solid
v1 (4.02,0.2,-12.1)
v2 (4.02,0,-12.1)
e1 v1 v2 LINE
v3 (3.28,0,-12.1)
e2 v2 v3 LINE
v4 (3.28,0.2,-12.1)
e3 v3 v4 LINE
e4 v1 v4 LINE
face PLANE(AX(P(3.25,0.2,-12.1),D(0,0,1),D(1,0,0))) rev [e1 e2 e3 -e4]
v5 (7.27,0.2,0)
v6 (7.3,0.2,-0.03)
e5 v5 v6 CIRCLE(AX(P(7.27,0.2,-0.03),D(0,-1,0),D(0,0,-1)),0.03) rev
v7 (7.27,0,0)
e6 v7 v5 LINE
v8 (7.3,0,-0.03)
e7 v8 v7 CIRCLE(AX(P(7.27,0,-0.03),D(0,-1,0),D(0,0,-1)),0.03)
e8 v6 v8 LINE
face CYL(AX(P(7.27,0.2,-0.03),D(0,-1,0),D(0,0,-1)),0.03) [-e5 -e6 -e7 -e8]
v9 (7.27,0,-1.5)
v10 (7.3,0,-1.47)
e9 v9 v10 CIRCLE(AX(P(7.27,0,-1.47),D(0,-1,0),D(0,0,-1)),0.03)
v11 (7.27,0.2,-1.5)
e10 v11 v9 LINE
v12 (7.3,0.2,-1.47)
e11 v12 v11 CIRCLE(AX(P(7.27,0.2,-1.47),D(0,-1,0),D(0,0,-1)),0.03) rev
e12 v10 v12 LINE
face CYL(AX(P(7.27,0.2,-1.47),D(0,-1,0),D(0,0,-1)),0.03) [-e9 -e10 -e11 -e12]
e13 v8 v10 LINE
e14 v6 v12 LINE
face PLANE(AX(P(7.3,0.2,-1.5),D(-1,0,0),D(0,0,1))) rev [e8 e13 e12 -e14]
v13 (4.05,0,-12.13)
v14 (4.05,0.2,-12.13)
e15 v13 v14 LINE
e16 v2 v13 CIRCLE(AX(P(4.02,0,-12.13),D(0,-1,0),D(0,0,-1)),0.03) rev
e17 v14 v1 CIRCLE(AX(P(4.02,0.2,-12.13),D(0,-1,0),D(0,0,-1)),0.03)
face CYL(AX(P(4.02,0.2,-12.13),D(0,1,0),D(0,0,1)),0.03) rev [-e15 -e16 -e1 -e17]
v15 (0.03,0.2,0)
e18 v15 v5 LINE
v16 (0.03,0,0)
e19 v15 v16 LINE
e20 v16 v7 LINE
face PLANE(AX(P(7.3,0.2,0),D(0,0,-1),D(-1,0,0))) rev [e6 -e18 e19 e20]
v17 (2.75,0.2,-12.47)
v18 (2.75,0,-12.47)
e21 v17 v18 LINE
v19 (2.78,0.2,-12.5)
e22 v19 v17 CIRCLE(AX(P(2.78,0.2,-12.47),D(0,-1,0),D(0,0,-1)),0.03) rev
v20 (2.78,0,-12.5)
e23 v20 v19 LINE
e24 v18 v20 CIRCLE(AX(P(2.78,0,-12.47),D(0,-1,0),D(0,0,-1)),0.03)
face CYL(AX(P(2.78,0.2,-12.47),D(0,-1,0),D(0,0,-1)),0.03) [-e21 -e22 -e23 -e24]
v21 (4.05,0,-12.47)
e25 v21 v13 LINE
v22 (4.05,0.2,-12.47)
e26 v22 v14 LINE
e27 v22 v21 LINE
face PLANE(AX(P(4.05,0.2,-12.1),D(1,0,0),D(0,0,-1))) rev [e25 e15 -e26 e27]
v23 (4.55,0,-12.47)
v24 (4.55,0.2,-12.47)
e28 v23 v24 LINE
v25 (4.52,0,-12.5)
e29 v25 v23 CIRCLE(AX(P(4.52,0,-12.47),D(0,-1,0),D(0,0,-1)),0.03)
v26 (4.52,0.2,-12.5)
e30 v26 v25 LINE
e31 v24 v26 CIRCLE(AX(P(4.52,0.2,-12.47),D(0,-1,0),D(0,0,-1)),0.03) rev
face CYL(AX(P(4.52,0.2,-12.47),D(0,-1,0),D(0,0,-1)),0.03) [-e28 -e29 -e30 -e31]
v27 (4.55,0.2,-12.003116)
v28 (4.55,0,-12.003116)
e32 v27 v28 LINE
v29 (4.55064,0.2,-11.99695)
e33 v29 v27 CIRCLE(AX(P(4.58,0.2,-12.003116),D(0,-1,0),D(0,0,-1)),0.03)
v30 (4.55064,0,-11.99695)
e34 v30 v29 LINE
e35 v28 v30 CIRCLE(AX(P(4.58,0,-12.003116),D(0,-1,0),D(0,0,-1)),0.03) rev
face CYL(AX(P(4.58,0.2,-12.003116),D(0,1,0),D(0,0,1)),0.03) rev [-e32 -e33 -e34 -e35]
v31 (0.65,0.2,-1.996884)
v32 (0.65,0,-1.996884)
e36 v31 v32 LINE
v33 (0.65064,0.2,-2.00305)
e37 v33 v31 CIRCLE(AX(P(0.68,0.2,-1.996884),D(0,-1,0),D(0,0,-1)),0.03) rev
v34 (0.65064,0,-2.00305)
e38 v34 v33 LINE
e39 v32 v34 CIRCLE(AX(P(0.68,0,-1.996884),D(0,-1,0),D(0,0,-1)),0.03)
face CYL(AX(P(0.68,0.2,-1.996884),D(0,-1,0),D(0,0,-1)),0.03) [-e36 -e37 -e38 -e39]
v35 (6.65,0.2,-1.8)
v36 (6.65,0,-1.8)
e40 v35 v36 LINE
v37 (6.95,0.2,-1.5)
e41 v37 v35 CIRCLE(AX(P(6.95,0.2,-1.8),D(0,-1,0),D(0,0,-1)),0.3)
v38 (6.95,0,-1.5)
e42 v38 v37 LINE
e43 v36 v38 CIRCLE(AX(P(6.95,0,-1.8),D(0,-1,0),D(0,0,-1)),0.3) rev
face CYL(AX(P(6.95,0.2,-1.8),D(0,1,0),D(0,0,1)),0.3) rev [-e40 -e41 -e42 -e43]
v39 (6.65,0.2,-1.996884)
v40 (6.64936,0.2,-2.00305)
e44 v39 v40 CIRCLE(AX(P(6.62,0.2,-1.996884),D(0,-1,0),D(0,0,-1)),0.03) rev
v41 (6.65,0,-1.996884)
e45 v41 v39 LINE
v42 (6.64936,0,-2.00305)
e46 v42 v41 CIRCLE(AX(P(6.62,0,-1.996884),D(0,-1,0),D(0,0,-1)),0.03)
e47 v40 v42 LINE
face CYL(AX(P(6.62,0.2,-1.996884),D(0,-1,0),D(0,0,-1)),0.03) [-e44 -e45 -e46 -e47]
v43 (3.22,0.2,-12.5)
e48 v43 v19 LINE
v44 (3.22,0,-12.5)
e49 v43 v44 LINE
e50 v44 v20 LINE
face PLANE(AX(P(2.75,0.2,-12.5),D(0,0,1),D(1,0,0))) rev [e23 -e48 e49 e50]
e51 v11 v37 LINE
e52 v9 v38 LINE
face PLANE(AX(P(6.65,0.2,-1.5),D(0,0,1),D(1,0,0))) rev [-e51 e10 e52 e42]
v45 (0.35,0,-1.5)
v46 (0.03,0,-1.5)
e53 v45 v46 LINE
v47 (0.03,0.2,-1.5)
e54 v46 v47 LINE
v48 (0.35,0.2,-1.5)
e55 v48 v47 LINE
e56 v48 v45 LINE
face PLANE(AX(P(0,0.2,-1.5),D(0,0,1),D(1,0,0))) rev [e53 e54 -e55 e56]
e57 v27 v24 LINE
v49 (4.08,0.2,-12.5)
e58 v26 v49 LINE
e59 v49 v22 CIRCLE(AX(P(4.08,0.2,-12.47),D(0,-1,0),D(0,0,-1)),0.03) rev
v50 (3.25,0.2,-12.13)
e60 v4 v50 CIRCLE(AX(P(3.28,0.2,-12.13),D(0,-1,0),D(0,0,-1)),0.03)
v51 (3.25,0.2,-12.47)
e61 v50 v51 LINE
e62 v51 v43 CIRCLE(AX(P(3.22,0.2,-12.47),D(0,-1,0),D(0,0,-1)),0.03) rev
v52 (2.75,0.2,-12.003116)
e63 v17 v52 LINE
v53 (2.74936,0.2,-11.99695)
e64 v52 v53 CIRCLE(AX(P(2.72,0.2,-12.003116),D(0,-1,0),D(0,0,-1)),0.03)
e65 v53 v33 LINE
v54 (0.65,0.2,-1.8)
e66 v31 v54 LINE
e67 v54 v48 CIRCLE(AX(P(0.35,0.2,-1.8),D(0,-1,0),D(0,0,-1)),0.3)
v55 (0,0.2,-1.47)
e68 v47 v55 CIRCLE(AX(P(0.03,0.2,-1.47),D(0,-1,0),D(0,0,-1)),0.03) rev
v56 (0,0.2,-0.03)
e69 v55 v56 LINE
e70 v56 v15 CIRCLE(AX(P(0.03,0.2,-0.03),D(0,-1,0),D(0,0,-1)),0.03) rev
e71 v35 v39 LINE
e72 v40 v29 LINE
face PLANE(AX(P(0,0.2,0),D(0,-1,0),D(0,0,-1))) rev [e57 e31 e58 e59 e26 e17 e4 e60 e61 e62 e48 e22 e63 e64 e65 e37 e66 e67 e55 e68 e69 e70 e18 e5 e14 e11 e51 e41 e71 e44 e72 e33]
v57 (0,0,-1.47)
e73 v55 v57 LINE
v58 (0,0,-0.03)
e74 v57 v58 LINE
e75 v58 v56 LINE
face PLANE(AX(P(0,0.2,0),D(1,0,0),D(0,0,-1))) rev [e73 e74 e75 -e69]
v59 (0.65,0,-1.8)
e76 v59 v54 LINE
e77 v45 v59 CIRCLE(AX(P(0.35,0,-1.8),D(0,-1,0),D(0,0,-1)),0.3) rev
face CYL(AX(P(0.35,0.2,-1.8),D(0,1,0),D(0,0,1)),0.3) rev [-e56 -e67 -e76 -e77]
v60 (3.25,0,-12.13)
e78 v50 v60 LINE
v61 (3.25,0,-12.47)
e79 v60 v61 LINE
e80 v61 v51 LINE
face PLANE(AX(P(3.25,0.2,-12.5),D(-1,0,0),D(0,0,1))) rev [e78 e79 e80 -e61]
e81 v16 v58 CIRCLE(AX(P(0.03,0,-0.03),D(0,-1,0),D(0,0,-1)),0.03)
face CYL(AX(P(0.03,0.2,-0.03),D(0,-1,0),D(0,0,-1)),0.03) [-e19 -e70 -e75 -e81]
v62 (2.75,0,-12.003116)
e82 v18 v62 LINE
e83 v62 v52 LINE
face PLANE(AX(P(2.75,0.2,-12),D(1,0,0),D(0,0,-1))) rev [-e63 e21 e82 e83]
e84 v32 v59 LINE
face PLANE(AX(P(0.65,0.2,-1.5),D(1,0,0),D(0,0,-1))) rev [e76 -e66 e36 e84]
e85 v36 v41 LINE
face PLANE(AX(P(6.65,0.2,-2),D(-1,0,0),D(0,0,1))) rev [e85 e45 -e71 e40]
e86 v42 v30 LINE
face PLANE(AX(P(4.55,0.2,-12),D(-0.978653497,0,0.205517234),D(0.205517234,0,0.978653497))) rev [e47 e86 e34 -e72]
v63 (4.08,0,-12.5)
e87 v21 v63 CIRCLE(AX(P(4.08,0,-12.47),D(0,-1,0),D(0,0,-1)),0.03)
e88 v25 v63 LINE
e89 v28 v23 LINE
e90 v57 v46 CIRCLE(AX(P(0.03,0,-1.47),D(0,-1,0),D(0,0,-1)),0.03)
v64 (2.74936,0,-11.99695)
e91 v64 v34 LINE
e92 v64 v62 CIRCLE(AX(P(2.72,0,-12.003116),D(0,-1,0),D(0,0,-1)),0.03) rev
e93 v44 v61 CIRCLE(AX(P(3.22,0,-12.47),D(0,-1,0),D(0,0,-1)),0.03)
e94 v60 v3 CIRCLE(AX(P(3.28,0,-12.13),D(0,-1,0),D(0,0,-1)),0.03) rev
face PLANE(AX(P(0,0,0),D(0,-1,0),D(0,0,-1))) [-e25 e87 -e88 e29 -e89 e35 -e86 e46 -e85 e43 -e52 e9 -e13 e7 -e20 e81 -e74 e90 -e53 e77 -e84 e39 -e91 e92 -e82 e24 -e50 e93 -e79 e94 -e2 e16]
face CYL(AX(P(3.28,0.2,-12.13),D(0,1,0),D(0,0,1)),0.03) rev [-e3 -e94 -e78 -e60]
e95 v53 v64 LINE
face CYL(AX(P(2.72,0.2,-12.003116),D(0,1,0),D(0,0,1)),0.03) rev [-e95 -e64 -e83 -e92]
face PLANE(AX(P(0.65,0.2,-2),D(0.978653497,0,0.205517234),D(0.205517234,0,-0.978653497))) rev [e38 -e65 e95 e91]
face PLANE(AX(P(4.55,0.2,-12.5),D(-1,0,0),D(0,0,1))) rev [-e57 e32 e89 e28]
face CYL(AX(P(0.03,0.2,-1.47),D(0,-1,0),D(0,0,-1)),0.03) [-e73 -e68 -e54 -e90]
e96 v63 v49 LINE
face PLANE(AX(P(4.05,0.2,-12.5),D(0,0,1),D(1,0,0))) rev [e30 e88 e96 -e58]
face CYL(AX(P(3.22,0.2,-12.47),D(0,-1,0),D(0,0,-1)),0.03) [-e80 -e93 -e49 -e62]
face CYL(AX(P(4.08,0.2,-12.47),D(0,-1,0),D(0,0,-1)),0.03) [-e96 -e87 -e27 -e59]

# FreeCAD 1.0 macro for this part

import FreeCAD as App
import Part
import Sketcher
from FreeCAD import Vector
Q = App.Units.Quantity


def edges_at(feature, points):
    """Names of the edges that pass closest to the given points."""
    edges = feature.Shape.Edges
    near = lambda p: min(range(len(edges)), key=lambda i: edges[i].distToShape(Part.Vertex(*p))[0])
    return sorted({f"Edge{near(p) + 1}" for p in points})

doc = App.newDocument("Part")
body = doc.addObject("PartDesign::Body", "Body")

# Sketch on XZ plane
sketch1 = body.newObject("Sketcher::SketchObject", "Sketch")
sketch1.AttachmentSupport = (doc.getObject("XZ_Plane"), [""])
sketch1.MapMode = "FlatFace"
sketch1.addGeometry(Part.LineSegment(Vector(0, -1.5, 0), Vector(0, 0, 0)), False)
sketch1.addGeometry(Part.LineSegment(Vector(0, 0, 0), Vector(7.3, 0, 0)), False)
sketch1.addGeometry(Part.LineSegment(Vector(7.3, 0, 0), Vector(7.3, -1.5, 0)), False)
sketch1.addGeometry(Part.LineSegment(Vector(7.3, -1.5, 0), Vector(6.65, -1.5, 0)), False)
sketch1.addGeometry(Part.LineSegment(Vector(6.65, -1.5, 0), Vector(6.65, -2, 0)), False)
sketch1.addGeometry(Part.LineSegment(Vector(6.65, -2, 0), Vector(4.55, -12, 0)), False)
sketch1.addGeometry(Part.LineSegment(Vector(4.55, -12, 0), Vector(4.55, -12.5, 0)), False)
sketch1.addGeometry(Part.LineSegment(Vector(4.55, -12.5, 0), Vector(4.05, -12.5, 0)), False)
sketch1.addGeometry(Part.LineSegment(Vector(4.05, -12.5, 0), Vector(4.05, -12.1, 0)), False)
sketch1.addGeometry(Part.LineSegment(Vector(4.05, -12.1, 0), Vector(3.25, -12.1, 0)), False)
sketch1.addGeometry(Part.LineSegment(Vector(3.25, -12.1, 0), Vector(3.25, -12.5, 0)), False)
sketch1.addGeometry(Part.LineSegment(Vector(3.25, -12.5, 0), Vector(2.75, -12.5, 0)), False)
sketch1.addGeometry(Part.LineSegment(Vector(2.75, -12.5, 0), Vector(2.75, -12, 0)), False)
sketch1.addGeometry(Part.LineSegment(Vector(2.75, -12, 0), Vector(0.65, -2, 0)), False)
sketch1.addGeometry(Part.LineSegment(Vector(0.65, -2, 0), Vector(0.65, -1.5, 0)), False)
sketch1.addGeometry(Part.LineSegment(Vector(0.65, -1.5, 0), Vector(0, -1.5, 0)), False)
sketch1.addConstraint(Sketcher.Constraint("Coincident", 0, 2, 1, 1))
sketch1.addConstraint(Sketcher.Constraint("Coincident", 1, 2, 2, 1))
sketch1.addConstraint(Sketcher.Constraint("Coincident", 2, 2, 3, 1))
sketch1.addConstraint(Sketcher.Constraint("Coincident", 3, 2, 4, 1))
sketch1.addConstraint(Sketcher.Constraint("Coincident", 4, 2, 5, 1))
sketch1.addConstraint(Sketcher.Constraint("Coincident", 5, 2, 6, 1))
sketch1.addConstraint(Sketcher.Constraint("Coincident", 6, 2, 7, 1))
sketch1.addConstraint(Sketcher.Constraint("Coincident", 7, 2, 8, 1))
sketch1.addConstraint(Sketcher.Constraint("Coincident", 8, 2, 9, 1))
sketch1.addConstraint(Sketcher.Constraint("Coincident", 9, 2, 10, 1))
sketch1.addConstraint(Sketcher.Constraint("Coincident", 10, 2, 11, 1))
sketch1.addConstraint(Sketcher.Constraint("Coincident", 11, 2, 12, 1))
sketch1.addConstraint(Sketcher.Constraint("Coincident", 12, 2, 13, 1))
sketch1.addConstraint(Sketcher.Constraint("Coincident", 13, 2, 14, 1))
sketch1.addConstraint(Sketcher.Constraint("Coincident", 14, 2, 15, 1))
sketch1.addConstraint(Sketcher.Constraint("Coincident", 15, 2, 0, 1))
sketch1.addConstraint(Sketcher.Constraint("Vertical", 0))
sketch1.addConstraint(Sketcher.Constraint("Horizontal", 1))
sketch1.addConstraint(Sketcher.Constraint("Vertical", 2))
sketch1.addConstraint(Sketcher.Constraint("Horizontal", 3))
sketch1.addConstraint(Sketcher.Constraint("Vertical", 4))
sketch1.addConstraint(Sketcher.Constraint("Vertical", 6))
sketch1.addConstraint(Sketcher.Constraint("Horizontal", 7))
sketch1.addConstraint(Sketcher.Constraint("Vertical", 8))
sketch1.addConstraint(Sketcher.Constraint("Horizontal", 9))
sketch1.addConstraint(Sketcher.Constraint("Vertical", 10))
sketch1.addConstraint(Sketcher.Constraint("Horizontal", 11))
sketch1.addConstraint(Sketcher.Constraint("Vertical", 12))
sketch1.addConstraint(Sketcher.Constraint("Vertical", 14))
sketch1.addConstraint(Sketcher.Constraint("Horizontal", 15))
sketch1.addConstraint(Sketcher.Constraint("Coincident", 0, 2, -1, 1))
sketch1.addConstraint(Sketcher.Constraint("Horizontal", 7, 2, 10, 2))
sketch1.addConstraint(Sketcher.Constraint("Horizontal", 5, 2, 12, 2))
sketch1.addConstraint(Sketcher.Constraint("Horizontal", 4, 2, 13, 2))
sketch1.addConstraint(Sketcher.Constraint("Horizontal", 3, 2, 14, 2))
sketch1.addConstraint(Sketcher.Constraint("Equal", 7, 11))
sketch1.addConstraint(Sketcher.Constraint("Equal", 3, 15))
sketch1.addConstraint(Sketcher.Constraint("Equal", 11, 4))
sketch1.addConstraint(Sketcher.Constraint("Equal", 4, 6))
sketch1.addConstraint(Sketcher.Constraint("Equal", 5, 13))
sketch1.addConstraint(Sketcher.Constraint("DistanceX", 1, 1, 1, 2, Q("7.3 mm")))
sketch1.addConstraint(Sketcher.Constraint("DistanceX", 7, 2, 7, 1, Q("0.5 mm")))
sketch1.addConstraint(Sketcher.Constraint("DistanceX", 9, 2, 9, 1, Q("0.8 mm")))
sketch1.addConstraint(Sketcher.Constraint("DistanceY", 0, 1, 0, 2, Q("1.5 mm")))
sketch1.addConstraint(Sketcher.Constraint("DistanceY", 8, 1, 8, 2, Q("0.4 mm")))
sketch1.addConstraint(Sketcher.Constraint("DistanceY", 5, 2, -1, 1, Q("12 mm")))
sketch1.addConstraint(Sketcher.Constraint("DistanceX", 13, 2, 4, 2, Q("6 mm")))
pad1 = body.newObject("PartDesign::Pad", "Pad")
pad1.Profile = sketch1
pad1.Length = 0.2
pad1.Reversed = True
doc.recompute()

fillet = body.newObject("PartDesign::Fillet", "Fillet")
fillet.Base = (pad1, edges_at(pad1, [(0.65, 0.1, -1.5), (6.65, 0.1, -1.5)]))
fillet.Radius = 0.3
doc.recompute()

fillet2 = body.newObject("PartDesign::Fillet", "Fillet001")
fillet2.Base = (fillet, edges_at(fillet, [
    (0, 0.1, 0),
    (0, 0.1, -1.5),
    (0.65, 0.1, -2),
    (2.75, 0.1, -12),
    (2.75, 0.1, -12.5),
    (3.25, 0.1, -12.5),
    (3.25, 0.1, -12.1),
    (4.05, 0.1, -12.1),
    (4.05, 0.1, -12.5),
    (4.55, 0.1, -12.5),
    (4.55, 0.1, -12),
    (6.65, 0.1, -2),
    (7.3, 0.1, -1.5),
    (7.3, 0.1, 0),
]))
fillet2.Radius = 0.03

doc.recompute()
